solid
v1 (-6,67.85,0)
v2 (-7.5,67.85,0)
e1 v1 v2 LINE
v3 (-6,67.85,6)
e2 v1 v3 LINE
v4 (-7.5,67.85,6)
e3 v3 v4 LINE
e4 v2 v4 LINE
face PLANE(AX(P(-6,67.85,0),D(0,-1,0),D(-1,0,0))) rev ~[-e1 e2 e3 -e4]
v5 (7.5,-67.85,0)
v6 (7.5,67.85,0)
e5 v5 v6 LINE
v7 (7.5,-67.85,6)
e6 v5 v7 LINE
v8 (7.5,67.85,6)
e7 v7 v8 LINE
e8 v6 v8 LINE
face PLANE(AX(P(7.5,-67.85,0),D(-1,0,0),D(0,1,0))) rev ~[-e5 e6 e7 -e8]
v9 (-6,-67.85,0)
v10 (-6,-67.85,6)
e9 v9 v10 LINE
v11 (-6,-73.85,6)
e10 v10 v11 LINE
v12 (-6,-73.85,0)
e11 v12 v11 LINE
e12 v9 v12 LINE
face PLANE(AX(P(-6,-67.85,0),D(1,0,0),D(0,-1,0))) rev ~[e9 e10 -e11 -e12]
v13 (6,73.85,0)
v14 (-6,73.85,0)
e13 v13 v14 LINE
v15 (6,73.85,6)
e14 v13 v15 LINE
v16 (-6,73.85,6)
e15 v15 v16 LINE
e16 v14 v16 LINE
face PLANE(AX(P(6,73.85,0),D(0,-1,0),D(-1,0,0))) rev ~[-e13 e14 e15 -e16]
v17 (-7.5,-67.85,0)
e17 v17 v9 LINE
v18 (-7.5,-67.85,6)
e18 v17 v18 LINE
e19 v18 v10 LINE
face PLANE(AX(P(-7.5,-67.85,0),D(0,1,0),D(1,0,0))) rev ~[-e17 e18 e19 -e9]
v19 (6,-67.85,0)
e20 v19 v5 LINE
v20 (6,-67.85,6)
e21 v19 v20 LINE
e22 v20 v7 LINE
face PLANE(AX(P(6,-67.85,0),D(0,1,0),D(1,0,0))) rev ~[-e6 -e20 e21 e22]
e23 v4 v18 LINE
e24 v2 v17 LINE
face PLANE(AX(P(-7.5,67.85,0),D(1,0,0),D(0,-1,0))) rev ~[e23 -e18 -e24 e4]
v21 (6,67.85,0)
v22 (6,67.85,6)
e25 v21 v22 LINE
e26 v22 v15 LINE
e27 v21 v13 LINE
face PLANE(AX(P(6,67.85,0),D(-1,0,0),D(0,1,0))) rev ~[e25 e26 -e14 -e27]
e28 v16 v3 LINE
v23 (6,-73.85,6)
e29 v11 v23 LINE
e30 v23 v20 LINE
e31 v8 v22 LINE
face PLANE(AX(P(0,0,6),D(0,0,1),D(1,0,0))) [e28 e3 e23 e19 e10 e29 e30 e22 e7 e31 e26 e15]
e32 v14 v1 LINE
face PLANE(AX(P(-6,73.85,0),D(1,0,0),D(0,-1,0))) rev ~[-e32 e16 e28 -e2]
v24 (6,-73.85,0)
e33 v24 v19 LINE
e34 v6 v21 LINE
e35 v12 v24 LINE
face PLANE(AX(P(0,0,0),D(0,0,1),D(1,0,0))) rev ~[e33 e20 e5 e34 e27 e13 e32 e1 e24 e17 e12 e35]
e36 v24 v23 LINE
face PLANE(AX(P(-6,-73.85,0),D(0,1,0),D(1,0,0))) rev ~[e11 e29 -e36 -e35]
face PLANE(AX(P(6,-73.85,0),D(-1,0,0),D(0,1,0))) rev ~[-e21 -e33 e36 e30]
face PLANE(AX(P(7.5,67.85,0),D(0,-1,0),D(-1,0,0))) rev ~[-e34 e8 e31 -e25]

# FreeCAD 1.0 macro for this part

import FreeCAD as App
import Part
import Sketcher
from FreeCAD import Vector
Q = App.Units.Quantity

doc = App.newDocument("Part")
body = doc.addObject("PartDesign::Body", "Body")

# Sketch on XY plane
sketch1 = body.newObject("Sketcher::SketchObject", "Sketch")
sketch1.AttachmentSupport = (doc.getObject("XY_Plane"), [""])
sketch1.MapMode = "FlatFace"
sketch1.addGeometry([
    Part.LineSegment(Vector(-7.5, 67.8, 0), Vector(-7.5, -67.8, 0)),  # 0
    Part.LineSegment(Vector(-7.5, -67.8, 0), Vector(-6, -67.8, 0)),  # 1
    Part.LineSegment(Vector(-6, -67.8, 0), Vector(-6, -73.8, 0)),  # 2
    Part.LineSegment(Vector(-6, -73.8, 0), Vector(6, -73.8, 0)),  # 3
    Part.LineSegment(Vector(6, -73.8, 0), Vector(6, -67.8, 0)),  # 4
    Part.LineSegment(Vector(6, -67.8, 0), Vector(7.5, -67.8, 0)),  # 5
    Part.LineSegment(Vector(7.5, -67.8, 0), Vector(7.5, 67.8, 0)),  # 6
    Part.LineSegment(Vector(7.5, 67.8, 0), Vector(6, 67.8, 0)),  # 7
    Part.LineSegment(Vector(6, 67.8, 0), Vector(6, 73.8, 0)),  # 8
    Part.LineSegment(Vector(6, 73.8, 0), Vector(-6, 73.8, 0)),  # 9
    Part.LineSegment(Vector(-6, 73.8, 0), Vector(-6, 67.8, 0)),  # 10
    Part.LineSegment(Vector(-6, 67.8, 0), Vector(-7.5, 67.8, 0)),  # 11
], False)
sketch1.addConstraint([
    Sketcher.Constraint("Coincident", 0, 2, 1, 1),
    Sketcher.Constraint("Coincident", 1, 2, 2, 1),
    Sketcher.Constraint("Coincident", 2, 2, 3, 1),
    Sketcher.Constraint("Coincident", 3, 2, 4, 1),
    Sketcher.Constraint("Coincident", 4, 2, 5, 1),
    Sketcher.Constraint("Coincident", 5, 2, 6, 1),
    Sketcher.Constraint("Coincident", 6, 2, 7, 1),
    Sketcher.Constraint("Coincident", 7, 2, 8, 1),
    Sketcher.Constraint("Coincident", 8, 2, 9, 1),
    Sketcher.Constraint("Coincident", 9, 2, 10, 1),
    Sketcher.Constraint("Coincident", 10, 2, 11, 1),
    Sketcher.Constraint("Coincident", 11, 2, 0, 1),
    Sketcher.Constraint("Vertical", 0),
    Sketcher.Constraint("Horizontal", 1),
    Sketcher.Constraint("Vertical", 2),
    Sketcher.Constraint("Horizontal", 3),
    Sketcher.Constraint("Vertical", 4),
    Sketcher.Constraint("Horizontal", 5),
    Sketcher.Constraint("Vertical", 6),
    Sketcher.Constraint("Horizontal", 7),
    Sketcher.Constraint("Vertical", 8),
    Sketcher.Constraint("Horizontal", 9),
    Sketcher.Constraint("Vertical", 10),
    Sketcher.Constraint("Horizontal", 11),
    Sketcher.Constraint("Symmetric", 0, 2, 6, 2, -1, 1),
    Sketcher.Constraint("Symmetric", 2, 2, 8, 2, -1, 1),
    Sketcher.Constraint("Symmetric", 4, 2, 10, 2, -1, 1),
    Sketcher.Constraint("Symmetric", 1, 2, 4, 2, -2),
    Sketcher.Constraint("DistanceX", 3, 1, 3, 2, Q("12 mm")),
    Sketcher.Constraint("DistanceY", 2, 2, 2, 1, Q("6 mm")),
    Sketcher.Constraint("DistanceX", 1, 1, 1, 2, Q("1.5 mm")),
    Sketcher.Constraint("DistanceY", 0, 2, 0, 1, Q("135.7 mm")),
])
pad1 = body.newObject("PartDesign::Pad", "Pad")
pad1.Profile = sketch1
pad1.Length = 6

doc.recompute()
